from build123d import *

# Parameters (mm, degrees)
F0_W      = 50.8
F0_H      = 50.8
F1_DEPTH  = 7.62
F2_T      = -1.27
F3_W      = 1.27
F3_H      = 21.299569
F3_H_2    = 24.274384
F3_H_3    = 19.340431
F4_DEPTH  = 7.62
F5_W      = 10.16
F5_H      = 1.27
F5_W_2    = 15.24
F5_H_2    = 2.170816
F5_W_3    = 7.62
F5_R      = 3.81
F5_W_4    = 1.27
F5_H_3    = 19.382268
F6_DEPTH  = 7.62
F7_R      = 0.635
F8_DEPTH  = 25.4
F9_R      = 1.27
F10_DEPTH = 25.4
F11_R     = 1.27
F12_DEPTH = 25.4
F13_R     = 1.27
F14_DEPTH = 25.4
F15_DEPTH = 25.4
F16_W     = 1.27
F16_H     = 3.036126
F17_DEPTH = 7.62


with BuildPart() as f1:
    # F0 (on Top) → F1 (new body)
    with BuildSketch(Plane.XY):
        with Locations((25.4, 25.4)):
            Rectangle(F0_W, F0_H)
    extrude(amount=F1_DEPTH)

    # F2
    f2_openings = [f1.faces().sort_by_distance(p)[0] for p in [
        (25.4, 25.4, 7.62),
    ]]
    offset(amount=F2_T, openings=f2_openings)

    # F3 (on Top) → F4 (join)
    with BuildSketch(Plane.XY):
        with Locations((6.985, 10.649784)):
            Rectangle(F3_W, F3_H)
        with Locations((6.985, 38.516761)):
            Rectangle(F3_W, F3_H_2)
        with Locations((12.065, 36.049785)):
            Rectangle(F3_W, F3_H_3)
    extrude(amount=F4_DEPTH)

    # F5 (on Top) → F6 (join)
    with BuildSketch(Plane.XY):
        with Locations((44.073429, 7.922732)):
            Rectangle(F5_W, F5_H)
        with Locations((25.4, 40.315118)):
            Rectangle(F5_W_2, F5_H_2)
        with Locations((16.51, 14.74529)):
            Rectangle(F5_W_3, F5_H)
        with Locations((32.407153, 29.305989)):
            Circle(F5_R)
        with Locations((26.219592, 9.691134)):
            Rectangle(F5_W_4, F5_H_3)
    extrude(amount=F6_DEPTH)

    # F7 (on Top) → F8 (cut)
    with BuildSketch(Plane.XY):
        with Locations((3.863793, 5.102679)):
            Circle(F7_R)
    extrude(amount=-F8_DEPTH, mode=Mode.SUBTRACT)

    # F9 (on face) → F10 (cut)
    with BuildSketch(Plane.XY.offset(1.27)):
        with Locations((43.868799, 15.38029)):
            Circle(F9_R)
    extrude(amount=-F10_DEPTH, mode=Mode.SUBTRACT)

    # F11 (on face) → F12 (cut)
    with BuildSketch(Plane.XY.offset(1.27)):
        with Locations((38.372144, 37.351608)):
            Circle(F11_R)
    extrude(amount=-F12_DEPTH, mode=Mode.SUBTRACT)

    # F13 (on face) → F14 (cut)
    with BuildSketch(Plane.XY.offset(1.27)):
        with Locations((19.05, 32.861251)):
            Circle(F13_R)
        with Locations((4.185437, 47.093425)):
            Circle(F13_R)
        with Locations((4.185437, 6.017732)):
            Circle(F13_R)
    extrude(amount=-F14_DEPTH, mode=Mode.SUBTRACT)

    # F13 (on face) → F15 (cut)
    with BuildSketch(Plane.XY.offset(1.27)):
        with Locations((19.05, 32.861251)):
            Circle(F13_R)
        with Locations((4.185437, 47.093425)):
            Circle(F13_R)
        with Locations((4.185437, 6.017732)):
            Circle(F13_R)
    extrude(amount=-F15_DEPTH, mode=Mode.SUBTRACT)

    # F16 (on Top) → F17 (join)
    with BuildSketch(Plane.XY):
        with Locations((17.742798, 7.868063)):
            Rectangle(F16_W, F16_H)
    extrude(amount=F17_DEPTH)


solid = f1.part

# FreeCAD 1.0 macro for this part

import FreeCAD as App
import Part
import Sketcher
from FreeCAD import Vector
Q = App.Units.Quantity


def faces_at(feature, points):
    """Names of the faces that lie closest to the given points."""
    faces = feature.Shape.Faces
    near = lambda p: min(range(len(faces)), key=lambda i: faces[i].distToShape(Part.Vertex(*p))[0])
    return sorted({f"Face{near(p) + 1}" for p in points})

doc = App.newDocument("Part")
body = doc.addObject("PartDesign::Body", "Body")

# Sketch on XY plane
sketch1 = body.newObject("Sketcher::SketchObject", "Sketch")
sketch1.AttachmentSupport = (doc.getObject("XY_Plane"), [""])
sketch1.MapMode = "FlatFace"
sketch1.addGeometry([
    Part.LineSegment(Vector(0, 51, 0), Vector(0, 0, 0)),
    Part.LineSegment(Vector(0, 0, 0), Vector(51, 0, 0)),
    Part.LineSegment(Vector(51, 0, 0), Vector(51, 51, 0)),
    Part.LineSegment(Vector(51, 51, 0), Vector(0, 51, 0)),
], False)
sketch1.addConstraint([
    Sketcher.Constraint("Coincident", 0, 2, 1, 1),
    Sketcher.Constraint("Coincident", 1, 2, 2, 1),
    Sketcher.Constraint("Coincident", 2, 2, 3, 1),
    Sketcher.Constraint("Coincident", 3, 2, 0, 1),
    Sketcher.Constraint("Vertical", 0),
    Sketcher.Constraint("Horizontal", 1),
    Sketcher.Constraint("Vertical", 2),
    Sketcher.Constraint("Horizontal", 3),
    Sketcher.Constraint("Coincident", 0, 2, -1, 1),
    Sketcher.Constraint("Equal", 3, 0),
    Sketcher.Constraint("DistanceX", 1, 1, 1, 2, Q("2 in")),
])
pad1 = body.newObject("PartDesign::Pad", "Pad")
pad1.Profile = sketch1
pad1.Length = Q("0.3 in")
doc.recompute()

thickness = body.newObject("PartDesign::Thickness", "Thickness")
thickness.Base = (pad1, faces_at(pad1, [(25.4, 25.4, 7.62)]))
thickness.Value = Q("0.05 in")
thickness.Reversed = True
thickness.Join = "Arc"

# Sketch on XY plane
sketch2 = body.newObject("Sketcher::SketchObject", "Sketch001")
sketch2.AttachmentSupport = (doc.getObject("XY_Plane"), [""])
sketch2.MapMode = "FlatFace"
sketch2.addGeometry([
    Part.LineSegment(Vector(6.3, 21.3, 0), Vector(6.3, 0, 0)),  # 0
    Part.LineSegment(Vector(6.3, 0, 0), Vector(7.6, 0, 0)),  # 1
    Part.LineSegment(Vector(7.6, 0, 0), Vector(7.6, 21.3, 0)),  # 2
    Part.LineSegment(Vector(7.6, 21.3, 0), Vector(6.3, 21.3, 0)),  # 3
    Part.LineSegment(Vector(6.3, 50.7, 0), Vector(6.3, 26.4, 0)),  # 4
    Part.LineSegment(Vector(6.3, 26.4, 0), Vector(7.6, 26.4, 0)),  # 5
    Part.LineSegment(Vector(7.6, 26.4, 0), Vector(7.6, 50.7, 0)),  # 6
    Part.LineSegment(Vector(7.6, 50.7, 0), Vector(6.3, 50.7, 0)),  # 7
    Part.LineSegment(Vector(11.4, 45.7, 0), Vector(11.4, 26.4, 0)),  # 8
    Part.LineSegment(Vector(11.4, 26.4, 0), Vector(12.7, 26.4, 0)),  # 9
    Part.LineSegment(Vector(12.7, 26.4, 0), Vector(12.7, 45.7, 0)),  # 10
    Part.LineSegment(Vector(12.7, 45.7, 0), Vector(11.4, 45.7, 0)),  # 11
], False)
sketch2.addConstraint([
    Sketcher.Constraint("Coincident", 0, 2, 1, 1),
    Sketcher.Constraint("Coincident", 1, 2, 2, 1),
    Sketcher.Constraint("Coincident", 2, 2, 3, 1),
    Sketcher.Constraint("Coincident", 3, 2, 0, 1),
    Sketcher.Constraint("Coincident", 4, 2, 5, 1),
    Sketcher.Constraint("Coincident", 5, 2, 6, 1),
    Sketcher.Constraint("Coincident", 6, 2, 7, 1),
    Sketcher.Constraint("Coincident", 7, 2, 4, 1),
    Sketcher.Constraint("Coincident", 8, 2, 9, 1),
    Sketcher.Constraint("Coincident", 9, 2, 10, 1),
    Sketcher.Constraint("Coincident", 10, 2, 11, 1),
    Sketcher.Constraint("Coincident", 11, 2, 8, 1),
    Sketcher.Constraint("Vertical", 0),
    Sketcher.Constraint("Horizontal", 1),
    Sketcher.Constraint("Vertical", 2),
    Sketcher.Constraint("Horizontal", 3),
    Sketcher.Constraint("Vertical", 4),
    Sketcher.Constraint("Horizontal", 5),
    Sketcher.Constraint("Vertical", 6),
    Sketcher.Constraint("Horizontal", 7),
    Sketcher.Constraint("Vertical", 8),
    Sketcher.Constraint("Horizontal", 9),
    Sketcher.Constraint("Vertical", 10),
    Sketcher.Constraint("Horizontal", 11),
    Sketcher.Constraint("PointOnObject", 0, 2, -1),
    Sketcher.Constraint("Horizontal", 5, 2, 8, 2),
    Sketcher.Constraint("Vertical", 3, 2, 4, 2),
    Sketcher.Constraint("Vertical", 2, 2, 5, 2),
    Sketcher.Constraint("Equal", 7, 9),
    Sketcher.Constraint("DistanceX", 1, 1, 1, 2, Q("0.05 in")),
    Sketcher.Constraint("DistanceX", -1, 1, 1, 2, Q("0.3 in")),
    Sketcher.Constraint("DistanceX", -1, 1, 9, 2, Q("0.5 in")),
    Sketcher.Constraint("DistanceY", -1, 1, 10, 2, Q("1.8 in")),
    Sketcher.Constraint("DistanceY", 3, 2, 4, 2, Q("0.2 in")),
    Sketcher.Constraint("DistanceY", 0, 2, 0, 1, Q("21.299569 mm")),
    Sketcher.Constraint("DistanceY", 4, 2, 4, 1, Q("24.274384 mm")),
])
pad2 = body.newObject("PartDesign::Pad", "Pad001")
pad2.Profile = sketch2
pad2.Length = Q("0.3 in")

# Sketch on XY plane
sketch3 = body.newObject("Sketcher::SketchObject", "Sketch002")
sketch3.AttachmentSupport = (doc.getObject("XY_Plane"), [""])
sketch3.MapMode = "FlatFace"
sketch3.addGeometry([
    Part.LineSegment(Vector(39, 8.6, 0), Vector(39, 7.3, 0)),  # 0
    Part.LineSegment(Vector(39, 7.3, 0), Vector(49.2, 7.3, 0)),  # 1
    Part.LineSegment(Vector(49.2, 7.3, 0), Vector(49.2, 8.6, 0)),  # 2
    Part.LineSegment(Vector(49.2, 8.6, 0), Vector(39, 8.6, 0)),  # 3
    Part.LineSegment(Vector(17.8, 41.4, 0), Vector(17.8, 39.2, 0)),  # 4
    Part.LineSegment(Vector(17.8, 39.2, 0), Vector(33, 39.2, 0)),  # 5
    Part.LineSegment(Vector(33, 39.2, 0), Vector(33, 41.4, 0)),  # 6
    Part.LineSegment(Vector(33, 41.4, 0), Vector(17.8, 41.4, 0)),  # 7
    Part.LineSegment(Vector(12.7, 15.4, 0), Vector(12.7, 14.1, 0)),  # 8
    Part.LineSegment(Vector(12.7, 14.1, 0), Vector(20.3, 14.1, 0)),  # 9
    Part.LineSegment(Vector(20.3, 14.1, 0), Vector(20.3, 15.4, 0)),  # 10
    Part.LineSegment(Vector(20.3, 15.4, 0), Vector(12.7, 15.4, 0)),  # 11
    Part.Circle(Vector(32.4, 29.3, 0), Vector(0, 0, 1), 3.8),  # 12
    Part.LineSegment(Vector(25.6, 19.4, 0), Vector(25.6, 0, 0)),  # 13
    Part.LineSegment(Vector(25.6, 0, 0), Vector(26.9, 0, 0)),  # 14
    Part.LineSegment(Vector(26.9, 0, 0), Vector(26.9, 19.4, 0)),  # 15
    Part.LineSegment(Vector(26.9, 19.4, 0), Vector(25.6, 19.4, 0)),  # 16
], False)
sketch3.addConstraint([
    Sketcher.Constraint("Coincident", 0, 2, 1, 1),
    Sketcher.Constraint("Coincident", 1, 2, 2, 1),
    Sketcher.Constraint("Coincident", 2, 2, 3, 1),
    Sketcher.Constraint("Coincident", 3, 2, 0, 1),
    Sketcher.Constraint("Coincident", 4, 2, 5, 1),
    Sketcher.Constraint("Coincident", 5, 2, 6, 1),
    Sketcher.Constraint("Coincident", 6, 2, 7, 1),
    Sketcher.Constraint("Coincident", 7, 2, 4, 1),
    Sketcher.Constraint("Coincident", 8, 2, 9, 1),
    Sketcher.Constraint("Coincident", 9, 2, 10, 1),
    Sketcher.Constraint("Coincident", 10, 2, 11, 1),
    Sketcher.Constraint("Coincident", 11, 2, 8, 1),
    Sketcher.Constraint("Coincident", 13, 2, 14, 1),
    Sketcher.Constraint("Coincident", 14, 2, 15, 1),
    Sketcher.Constraint("Coincident", 15, 2, 16, 1),
    Sketcher.Constraint("Coincident", 16, 2, 13, 1),
    Sketcher.Constraint("Vertical", 0),
    Sketcher.Constraint("Horizontal", 1),
    Sketcher.Constraint("Vertical", 2),
    Sketcher.Constraint("Horizontal", 3),
    Sketcher.Constraint("Vertical", 4),
    Sketcher.Constraint("Horizontal", 5),
    Sketcher.Constraint("Vertical", 6),
    Sketcher.Constraint("Horizontal", 7),
    Sketcher.Constraint("Vertical", 8),
    Sketcher.Constraint("Horizontal", 9),
    Sketcher.Constraint("Vertical", 10),
    Sketcher.Constraint("Horizontal", 11),
    Sketcher.Constraint("Vertical", 13),
    Sketcher.Constraint("Horizontal", 14),
    Sketcher.Constraint("Vertical", 15),
    Sketcher.Constraint("Horizontal", 16),
    Sketcher.Constraint("PointOnObject", 13, 2, -1),
    Sketcher.Constraint("Equal", 16, 0),
    Sketcher.Constraint("Equal", 2, 8),
    Sketcher.Constraint("Diameter", 12, Q("0.3 in")),
    Sketcher.Constraint("DistanceX", 1, 1, 1, 2, Q("0.4 in")),
    Sketcher.Constraint("DistanceX", 5, 1, 5, 2, Q("0.6 in")),
    Sketcher.Constraint("DistanceX", 9, 1, 9, 2, Q("0.3 in")),
    Sketcher.Constraint("DistanceX", 14, 1, 14, 2, Q("0.05 in")),
    Sketcher.Constraint("DistanceX", -1, 1, 4, 2, Q("0.7 in")),
    Sketcher.Constraint("DistanceX", -1, 1, 8, 2, Q("0.5 in")),
    Sketcher.Constraint("DistanceY", 13, 2, 13, 1, Q("19.382268 mm")),
    Sketcher.Constraint("DistanceY", 8, 2, 12, 3, Q("15.195699 mm")),
    Sketcher.Constraint("DistanceY", 4, 2, 4, 1, Q("2.170816 mm")),
    Sketcher.Constraint("DistanceY", -1, 1, 12, 3, Q("29.305989 mm")),
    Sketcher.Constraint("DistanceX", -1, 1, 0, 2, Q("38.993429 mm")),
    Sketcher.Constraint("DistanceY", -1, 1, 4, 2, Q("39.22971 mm")),
    Sketcher.Constraint("DistanceX", -1, 1, 14, 2, Q("26.854592 mm")),
    Sketcher.Constraint("DistanceY", 3, 2, 8, 2, Q("5.552558 mm")),
    Sketcher.Constraint("DistanceX", 15, 2, 12, 3, Q("5.552561 mm")),
])
pad3 = body.newObject("PartDesign::Pad", "Pad002")
pad3.Profile = sketch3
pad3.Length = Q("0.3 in")

# Sketch on XY plane
sketch4 = body.newObject("Sketcher::SketchObject", "Sketch003")
sketch4.AttachmentSupport = (doc.getObject("XY_Plane"), [""])
sketch4.MapMode = "FlatFace"
sketch4.addGeometry(Part.Circle(Vector(3.9, 5.1, 0), Vector(0, 0, 1), 0.6), False)
sketch4.addConstraint([
    Sketcher.Constraint("Diameter", 0, Q("0.05 in")),
    Sketcher.Constraint("DistanceY", -1, 1, 0, 3, Q("5.102679 mm")),
    Sketcher.Constraint("DistanceX", -1, 1, 0, 3, Q("3.863793 mm")),
])
pocket1 = body.newObject("PartDesign::Pocket", "Pocket")
pocket1.Profile = sketch4
pocket1.Length = Q("1 in")

# Sketch on XY plane
sketch5 = body.newObject("Sketcher::SketchObject", "Sketch004")
sketch5.AttachmentSupport = (doc.getObject("XY_Plane"), [""])
sketch5.MapMode = "FlatFace"
sketch5.AttachmentOffset = App.Placement(Vector(0, 0, 0.05 * 25.4), App.Rotation())
sketch5.addGeometry(Part.Circle(Vector(43.9, 15.4, 0), Vector(0, 0, 1), 1.3), False)
sketch5.addConstraint([
    Sketcher.Constraint("Diameter", 0, Q("0.1 in")),
    Sketcher.Constraint("DistanceX", -1, 1, 0, 3, Q("43.868799 mm")),
    Sketcher.Constraint("DistanceY", -1, 1, 0, 3, Q("15.38029 mm")),
])
pocket2 = body.newObject("PartDesign::Pocket", "Pocket001")
pocket2.Profile = sketch5
pocket2.Length = Q("1 in")

# Sketch on XY plane
sketch6 = body.newObject("Sketcher::SketchObject", "Sketch005")
sketch6.AttachmentSupport = (doc.getObject("XY_Plane"), [""])
sketch6.MapMode = "FlatFace"
sketch6.AttachmentOffset = App.Placement(Vector(0, 0, 0.05 * 25.4), App.Rotation())
sketch6.addGeometry(Part.Circle(Vector(38.4, 37.4, 0), Vector(0, 0, 1), 1.3), False)
sketch6.addConstraint([
    Sketcher.Constraint("Diameter", 0, Q("0.1 in")),
    Sketcher.Constraint("DistanceX", -1, 1, 0, 3, Q("38.372144 mm")),
    Sketcher.Constraint("DistanceY", -1, 1, 0, 3, Q("37.351608 mm")),
])
pocket3 = body.newObject("PartDesign::Pocket", "Pocket002")
pocket3.Profile = sketch6
pocket3.Length = Q("1 in")

# Sketch on XY plane
sketch7 = body.newObject("Sketcher::SketchObject", "Sketch006")
sketch7.AttachmentSupport = (doc.getObject("XY_Plane"), [""])
sketch7.MapMode = "FlatFace"
sketch7.AttachmentOffset = App.Placement(Vector(0, 0, 0.05 * 25.4), App.Rotation())
sketch7.addGeometry([
    Part.Circle(Vector(19.1, 32.9, 0), Vector(0, 0, 1), 1.3),
    Part.Circle(Vector(4.2, 47.1, 0), Vector(0, 0, 1), 1.3),
    Part.Circle(Vector(4.2, 6, 0), Vector(0, 0, 1), 1.3),
], False)
sketch7.addConstraint([
    Sketcher.Constraint("Equal", 0, 1),
    Sketcher.Constraint("Equal", 1, 2),
    Sketcher.Constraint("Vertical", 1, 3, 2, 3),
    Sketcher.Constraint("Diameter", 0, Q("0.1 in")),
    Sketcher.Constraint("DistanceX", -1, 1, 0, 3, Q("0.75 in")),
    Sketcher.Constraint("DistanceY", -1, 1, 0, 3, Q("32.861251 mm")),
    Sketcher.Constraint("DistanceY", -1, 1, 2, 3, Q("6.017732 mm")),
    Sketcher.Constraint("DistanceX", -1, 1, 1, 3, Q("4.185437 mm")),
    Sketcher.Constraint("DistanceY", -1, 1, 1, 3, Q("47.093425 mm")),
])
pocket4 = body.newObject("PartDesign::Pocket", "Pocket003")
pocket4.Profile = sketch7
pocket4.Length = Q("1 in")

# Sketch on XY plane
sketch8 = body.newObject("Sketcher::SketchObject", "Sketch007")
sketch8.AttachmentSupport = (doc.getObject("XY_Plane"), [""])
sketch8.MapMode = "FlatFace"
sketch8.AttachmentOffset = App.Placement(Vector(0, 0, 0.05 * 25.4), App.Rotation())
sketch8.addGeometry([
    Part.Circle(Vector(19.1, 32.9, 0), Vector(0, 0, 1), 1.3),
    Part.Circle(Vector(4.2, 47.1, 0), Vector(0, 0, 1), 1.3),
    Part.Circle(Vector(4.2, 6, 0), Vector(0, 0, 1), 1.3),
], False)
sketch8.addConstraint([
    Sketcher.Constraint("Equal", 0, 1),
    Sketcher.Constraint("Equal", 1, 2),
    Sketcher.Constraint("Vertical", 1, 3, 2, 3),
    Sketcher.Constraint("Diameter", 0, Q("0.1 in")),
    Sketcher.Constraint("DistanceX", -1, 1, 0, 3, Q("0.75 in")),
    Sketcher.Constraint("DistanceY", -1, 1, 0, 3, Q("32.861251 mm")),
    Sketcher.Constraint("DistanceY", -1, 1, 2, 3, Q("6.017732 mm")),
    Sketcher.Constraint("DistanceX", -1, 1, 1, 3, Q("4.185437 mm")),
    Sketcher.Constraint("DistanceY", -1, 1, 1, 3, Q("47.093425 mm")),
])
pocket5 = body.newObject("PartDesign::Pocket", "Pocket004")
pocket5.Profile = sketch8
pocket5.Length = Q("1 in")

# Sketch on XY plane
sketch9 = body.newObject("Sketcher::SketchObject", "Sketch008")
sketch9.AttachmentSupport = (doc.getObject("XY_Plane"), [""])
sketch9.MapMode = "FlatFace"
sketch9.addGeometry([
    Part.LineSegment(Vector(17.1, 9.4, 0), Vector(17.1, 6.3, 0)),
    Part.LineSegment(Vector(17.1, 6.3, 0), Vector(18.4, 6.3, 0)),
    Part.LineSegment(Vector(18.4, 6.3, 0), Vector(18.4, 9.4, 0)),
    Part.LineSegment(Vector(18.4, 9.4, 0), Vector(17.1, 9.4, 0)),
], False)
sketch9.addConstraint([
    Sketcher.Constraint("Coincident", 0, 2, 1, 1),
    Sketcher.Constraint("Coincident", 1, 2, 2, 1),
    Sketcher.Constraint("Coincident", 2, 2, 3, 1),
    Sketcher.Constraint("Coincident", 3, 2, 0, 1),
    Sketcher.Constraint("Vertical", 0),
    Sketcher.Constraint("Horizontal", 1),
    Sketcher.Constraint("Vertical", 2),
    Sketcher.Constraint("Horizontal", 3),
    Sketcher.Constraint("DistanceX", 1, 1, 1, 2, Q("0.05 in")),
    Sketcher.Constraint("DistanceY", -1, 1, 0, 2, Q("0.25 in")),
    Sketcher.Constraint("DistanceY", 0, 2, 0, 1, Q("3.036126 mm")),
    Sketcher.Constraint("DistanceX", -1, 1, 0, 2, Q("17.107798 mm")),
])
pad4 = body.newObject("PartDesign::Pad", "Pad003")
pad4.Profile = sketch9
pad4.Length = Q("0.3 in")

doc.recompute()
